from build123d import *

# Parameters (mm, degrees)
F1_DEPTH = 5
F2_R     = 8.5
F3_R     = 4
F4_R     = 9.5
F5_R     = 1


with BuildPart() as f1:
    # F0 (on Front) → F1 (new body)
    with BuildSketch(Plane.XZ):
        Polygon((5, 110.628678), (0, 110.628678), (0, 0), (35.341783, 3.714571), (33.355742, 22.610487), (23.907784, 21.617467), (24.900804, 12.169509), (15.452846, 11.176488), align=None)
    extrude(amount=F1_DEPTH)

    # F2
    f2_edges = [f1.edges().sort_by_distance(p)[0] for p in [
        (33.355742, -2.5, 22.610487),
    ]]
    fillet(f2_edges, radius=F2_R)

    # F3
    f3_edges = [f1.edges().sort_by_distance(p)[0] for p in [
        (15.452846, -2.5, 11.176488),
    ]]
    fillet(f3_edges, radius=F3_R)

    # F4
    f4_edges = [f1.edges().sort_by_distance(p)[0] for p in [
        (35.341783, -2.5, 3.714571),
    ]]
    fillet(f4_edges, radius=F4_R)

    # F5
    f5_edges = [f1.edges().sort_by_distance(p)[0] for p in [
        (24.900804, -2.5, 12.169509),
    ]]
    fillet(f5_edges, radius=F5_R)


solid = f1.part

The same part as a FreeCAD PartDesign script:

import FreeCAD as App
import Part
import Sketcher
Q = App.Units.Quantity


def edges_at(feature, points):
    """Names of the edges that pass closest to the given points."""
    edges = feature.Shape.Edges
    near = lambda p: min(range(len(edges)), key=lambda i: edges[i].distToShape(Part.Vertex(*p))[0])
    return sorted({f"Edge{near(p) + 1}" for p in points})

doc = App.newDocument("Part")
body = doc.addObject("PartDesign::Body", "Body")

sketch1 = doc.addObject("Sketcher::SketchObject", "Sketch")
body.addObject(sketch1)
sketch1.AttachmentSupport = (doc.XZ_Plane, [""])
sketch1.MapMode = "FlatFace"
sketch1.addGeometry(Part.LineSegment(App.Vector(5, 111, 0), App.Vector(0, 111, 0)), False)
sketch1.addGeometry(Part.LineSegment(App.Vector(0, 111, 0), App.Vector(0, 0, 0)), False)
sketch1.addGeometry(Part.LineSegment(App.Vector(0, 0, 0), App.Vector(35, 4, 0)), False)
sketch1.addGeometry(Part.LineSegment(App.Vector(35, 4, 0), App.Vector(33, 23, 0)), False)
sketch1.addGeometry(Part.LineSegment(App.Vector(33, 23, 0), App.Vector(24, 22, 0)), False)
sketch1.addGeometry(Part.LineSegment(App.Vector(24, 22, 0), App.Vector(25, 12, 0)), False)
sketch1.addGeometry(Part.LineSegment(App.Vector(25, 12, 0), App.Vector(15, 11, 0)), False)
sketch1.addGeometry(Part.LineSegment(App.Vector(15, 11, 0), App.Vector(5, 111, 0)), False)
sketch1.addConstraint(Sketcher.Constraint("Coincident", 0, 2, 1, 1))
sketch1.addConstraint(Sketcher.Constraint("Coincident", 1, 2, 2, 1))
sketch1.addConstraint(Sketcher.Constraint("Coincident", 2, 2, 3, 1))
sketch1.addConstraint(Sketcher.Constraint("Coincident", 3, 2, 4, 1))
sketch1.addConstraint(Sketcher.Constraint("Coincident", 4, 2, 5, 1))
sketch1.addConstraint(Sketcher.Constraint("Coincident", 5, 2, 6, 1))
sketch1.addConstraint(Sketcher.Constraint("Coincident", 6, 2, 7, 1))
sketch1.addConstraint(Sketcher.Constraint("Coincident", 7, 2, 0, 1))
sketch1.addConstraint(Sketcher.Constraint("Horizontal", 0))
sketch1.addConstraint(Sketcher.Constraint("Vertical", 1))
sketch1.addConstraint(Sketcher.Constraint("Coincident", 1, 2, -1, 1))
sketch1.addConstraint(Sketcher.Constraint("Perpendicular", 2, 3))
sketch1.addConstraint(Sketcher.Constraint("Perpendicular", 3, 4))
sketch1.addConstraint(Sketcher.Constraint("Perpendicular", 4, 5))
sketch1.addConstraint(Sketcher.Constraint("Perpendicular", 5, 6))
sketch1.addConstraint(Sketcher.Constraint("Perpendicular", 6, 7))
sketch1.addConstraint(Sketcher.Constraint("Equal", 4, 5))
sketch1.addConstraint(Sketcher.Constraint("Equal", 5, 6))
sketch1.addConstraint(Sketcher.Constraint("DistanceX", 0, 2, 0, 1, Q("5 mm")))
sketch1.addConstraint(Sketcher.Constraint("Angle", 2, Q("6 deg")))
sketch1.addConstraint(Sketcher.Constraint("Distance", 3, Q("19 mm")))
sketch1.addConstraint(Sketcher.Constraint("Distance", 7, Q("100 mm")))
sketch1.addConstraint(Sketcher.Constraint("Distance", 4, Q("9.5 mm")))
pad1 = doc.addObject("PartDesign::Pad", "Pad")
body.addObject(pad1)
pad1.Profile = sketch1
pad1.Length = 5
doc.recompute()

fillet = doc.addObject("PartDesign::Fillet", "Fillet")
body.addObject(fillet)
fillet.Base = (pad1, edges_at(pad1, [(33.356, -2.5, 22.61)]))
fillet.Radius = 8.5
doc.recompute()

fillet2 = doc.addObject("PartDesign::Fillet", "Fillet001")
body.addObject(fillet2)
fillet2.Base = (fillet, edges_at(fillet, [(15.453, -2.5, 11.176)]))
fillet2.Radius = 4
doc.recompute()

fillet3 = doc.addObject("PartDesign::Fillet", "Fillet002")
body.addObject(fillet3)
fillet3.Base = (fillet2, edges_at(fillet2, [(35.342, -2.5, 3.715)]))
fillet3.Radius = 9.5
doc.recompute()

fillet4 = doc.addObject("PartDesign::Fillet", "Fillet003")
body.addObject(fillet4)
fillet4.Base = (fillet3, edges_at(fillet3, [(24.901, -2.5, 12.17)]))
fillet4.Radius = 1

doc.recompute()
